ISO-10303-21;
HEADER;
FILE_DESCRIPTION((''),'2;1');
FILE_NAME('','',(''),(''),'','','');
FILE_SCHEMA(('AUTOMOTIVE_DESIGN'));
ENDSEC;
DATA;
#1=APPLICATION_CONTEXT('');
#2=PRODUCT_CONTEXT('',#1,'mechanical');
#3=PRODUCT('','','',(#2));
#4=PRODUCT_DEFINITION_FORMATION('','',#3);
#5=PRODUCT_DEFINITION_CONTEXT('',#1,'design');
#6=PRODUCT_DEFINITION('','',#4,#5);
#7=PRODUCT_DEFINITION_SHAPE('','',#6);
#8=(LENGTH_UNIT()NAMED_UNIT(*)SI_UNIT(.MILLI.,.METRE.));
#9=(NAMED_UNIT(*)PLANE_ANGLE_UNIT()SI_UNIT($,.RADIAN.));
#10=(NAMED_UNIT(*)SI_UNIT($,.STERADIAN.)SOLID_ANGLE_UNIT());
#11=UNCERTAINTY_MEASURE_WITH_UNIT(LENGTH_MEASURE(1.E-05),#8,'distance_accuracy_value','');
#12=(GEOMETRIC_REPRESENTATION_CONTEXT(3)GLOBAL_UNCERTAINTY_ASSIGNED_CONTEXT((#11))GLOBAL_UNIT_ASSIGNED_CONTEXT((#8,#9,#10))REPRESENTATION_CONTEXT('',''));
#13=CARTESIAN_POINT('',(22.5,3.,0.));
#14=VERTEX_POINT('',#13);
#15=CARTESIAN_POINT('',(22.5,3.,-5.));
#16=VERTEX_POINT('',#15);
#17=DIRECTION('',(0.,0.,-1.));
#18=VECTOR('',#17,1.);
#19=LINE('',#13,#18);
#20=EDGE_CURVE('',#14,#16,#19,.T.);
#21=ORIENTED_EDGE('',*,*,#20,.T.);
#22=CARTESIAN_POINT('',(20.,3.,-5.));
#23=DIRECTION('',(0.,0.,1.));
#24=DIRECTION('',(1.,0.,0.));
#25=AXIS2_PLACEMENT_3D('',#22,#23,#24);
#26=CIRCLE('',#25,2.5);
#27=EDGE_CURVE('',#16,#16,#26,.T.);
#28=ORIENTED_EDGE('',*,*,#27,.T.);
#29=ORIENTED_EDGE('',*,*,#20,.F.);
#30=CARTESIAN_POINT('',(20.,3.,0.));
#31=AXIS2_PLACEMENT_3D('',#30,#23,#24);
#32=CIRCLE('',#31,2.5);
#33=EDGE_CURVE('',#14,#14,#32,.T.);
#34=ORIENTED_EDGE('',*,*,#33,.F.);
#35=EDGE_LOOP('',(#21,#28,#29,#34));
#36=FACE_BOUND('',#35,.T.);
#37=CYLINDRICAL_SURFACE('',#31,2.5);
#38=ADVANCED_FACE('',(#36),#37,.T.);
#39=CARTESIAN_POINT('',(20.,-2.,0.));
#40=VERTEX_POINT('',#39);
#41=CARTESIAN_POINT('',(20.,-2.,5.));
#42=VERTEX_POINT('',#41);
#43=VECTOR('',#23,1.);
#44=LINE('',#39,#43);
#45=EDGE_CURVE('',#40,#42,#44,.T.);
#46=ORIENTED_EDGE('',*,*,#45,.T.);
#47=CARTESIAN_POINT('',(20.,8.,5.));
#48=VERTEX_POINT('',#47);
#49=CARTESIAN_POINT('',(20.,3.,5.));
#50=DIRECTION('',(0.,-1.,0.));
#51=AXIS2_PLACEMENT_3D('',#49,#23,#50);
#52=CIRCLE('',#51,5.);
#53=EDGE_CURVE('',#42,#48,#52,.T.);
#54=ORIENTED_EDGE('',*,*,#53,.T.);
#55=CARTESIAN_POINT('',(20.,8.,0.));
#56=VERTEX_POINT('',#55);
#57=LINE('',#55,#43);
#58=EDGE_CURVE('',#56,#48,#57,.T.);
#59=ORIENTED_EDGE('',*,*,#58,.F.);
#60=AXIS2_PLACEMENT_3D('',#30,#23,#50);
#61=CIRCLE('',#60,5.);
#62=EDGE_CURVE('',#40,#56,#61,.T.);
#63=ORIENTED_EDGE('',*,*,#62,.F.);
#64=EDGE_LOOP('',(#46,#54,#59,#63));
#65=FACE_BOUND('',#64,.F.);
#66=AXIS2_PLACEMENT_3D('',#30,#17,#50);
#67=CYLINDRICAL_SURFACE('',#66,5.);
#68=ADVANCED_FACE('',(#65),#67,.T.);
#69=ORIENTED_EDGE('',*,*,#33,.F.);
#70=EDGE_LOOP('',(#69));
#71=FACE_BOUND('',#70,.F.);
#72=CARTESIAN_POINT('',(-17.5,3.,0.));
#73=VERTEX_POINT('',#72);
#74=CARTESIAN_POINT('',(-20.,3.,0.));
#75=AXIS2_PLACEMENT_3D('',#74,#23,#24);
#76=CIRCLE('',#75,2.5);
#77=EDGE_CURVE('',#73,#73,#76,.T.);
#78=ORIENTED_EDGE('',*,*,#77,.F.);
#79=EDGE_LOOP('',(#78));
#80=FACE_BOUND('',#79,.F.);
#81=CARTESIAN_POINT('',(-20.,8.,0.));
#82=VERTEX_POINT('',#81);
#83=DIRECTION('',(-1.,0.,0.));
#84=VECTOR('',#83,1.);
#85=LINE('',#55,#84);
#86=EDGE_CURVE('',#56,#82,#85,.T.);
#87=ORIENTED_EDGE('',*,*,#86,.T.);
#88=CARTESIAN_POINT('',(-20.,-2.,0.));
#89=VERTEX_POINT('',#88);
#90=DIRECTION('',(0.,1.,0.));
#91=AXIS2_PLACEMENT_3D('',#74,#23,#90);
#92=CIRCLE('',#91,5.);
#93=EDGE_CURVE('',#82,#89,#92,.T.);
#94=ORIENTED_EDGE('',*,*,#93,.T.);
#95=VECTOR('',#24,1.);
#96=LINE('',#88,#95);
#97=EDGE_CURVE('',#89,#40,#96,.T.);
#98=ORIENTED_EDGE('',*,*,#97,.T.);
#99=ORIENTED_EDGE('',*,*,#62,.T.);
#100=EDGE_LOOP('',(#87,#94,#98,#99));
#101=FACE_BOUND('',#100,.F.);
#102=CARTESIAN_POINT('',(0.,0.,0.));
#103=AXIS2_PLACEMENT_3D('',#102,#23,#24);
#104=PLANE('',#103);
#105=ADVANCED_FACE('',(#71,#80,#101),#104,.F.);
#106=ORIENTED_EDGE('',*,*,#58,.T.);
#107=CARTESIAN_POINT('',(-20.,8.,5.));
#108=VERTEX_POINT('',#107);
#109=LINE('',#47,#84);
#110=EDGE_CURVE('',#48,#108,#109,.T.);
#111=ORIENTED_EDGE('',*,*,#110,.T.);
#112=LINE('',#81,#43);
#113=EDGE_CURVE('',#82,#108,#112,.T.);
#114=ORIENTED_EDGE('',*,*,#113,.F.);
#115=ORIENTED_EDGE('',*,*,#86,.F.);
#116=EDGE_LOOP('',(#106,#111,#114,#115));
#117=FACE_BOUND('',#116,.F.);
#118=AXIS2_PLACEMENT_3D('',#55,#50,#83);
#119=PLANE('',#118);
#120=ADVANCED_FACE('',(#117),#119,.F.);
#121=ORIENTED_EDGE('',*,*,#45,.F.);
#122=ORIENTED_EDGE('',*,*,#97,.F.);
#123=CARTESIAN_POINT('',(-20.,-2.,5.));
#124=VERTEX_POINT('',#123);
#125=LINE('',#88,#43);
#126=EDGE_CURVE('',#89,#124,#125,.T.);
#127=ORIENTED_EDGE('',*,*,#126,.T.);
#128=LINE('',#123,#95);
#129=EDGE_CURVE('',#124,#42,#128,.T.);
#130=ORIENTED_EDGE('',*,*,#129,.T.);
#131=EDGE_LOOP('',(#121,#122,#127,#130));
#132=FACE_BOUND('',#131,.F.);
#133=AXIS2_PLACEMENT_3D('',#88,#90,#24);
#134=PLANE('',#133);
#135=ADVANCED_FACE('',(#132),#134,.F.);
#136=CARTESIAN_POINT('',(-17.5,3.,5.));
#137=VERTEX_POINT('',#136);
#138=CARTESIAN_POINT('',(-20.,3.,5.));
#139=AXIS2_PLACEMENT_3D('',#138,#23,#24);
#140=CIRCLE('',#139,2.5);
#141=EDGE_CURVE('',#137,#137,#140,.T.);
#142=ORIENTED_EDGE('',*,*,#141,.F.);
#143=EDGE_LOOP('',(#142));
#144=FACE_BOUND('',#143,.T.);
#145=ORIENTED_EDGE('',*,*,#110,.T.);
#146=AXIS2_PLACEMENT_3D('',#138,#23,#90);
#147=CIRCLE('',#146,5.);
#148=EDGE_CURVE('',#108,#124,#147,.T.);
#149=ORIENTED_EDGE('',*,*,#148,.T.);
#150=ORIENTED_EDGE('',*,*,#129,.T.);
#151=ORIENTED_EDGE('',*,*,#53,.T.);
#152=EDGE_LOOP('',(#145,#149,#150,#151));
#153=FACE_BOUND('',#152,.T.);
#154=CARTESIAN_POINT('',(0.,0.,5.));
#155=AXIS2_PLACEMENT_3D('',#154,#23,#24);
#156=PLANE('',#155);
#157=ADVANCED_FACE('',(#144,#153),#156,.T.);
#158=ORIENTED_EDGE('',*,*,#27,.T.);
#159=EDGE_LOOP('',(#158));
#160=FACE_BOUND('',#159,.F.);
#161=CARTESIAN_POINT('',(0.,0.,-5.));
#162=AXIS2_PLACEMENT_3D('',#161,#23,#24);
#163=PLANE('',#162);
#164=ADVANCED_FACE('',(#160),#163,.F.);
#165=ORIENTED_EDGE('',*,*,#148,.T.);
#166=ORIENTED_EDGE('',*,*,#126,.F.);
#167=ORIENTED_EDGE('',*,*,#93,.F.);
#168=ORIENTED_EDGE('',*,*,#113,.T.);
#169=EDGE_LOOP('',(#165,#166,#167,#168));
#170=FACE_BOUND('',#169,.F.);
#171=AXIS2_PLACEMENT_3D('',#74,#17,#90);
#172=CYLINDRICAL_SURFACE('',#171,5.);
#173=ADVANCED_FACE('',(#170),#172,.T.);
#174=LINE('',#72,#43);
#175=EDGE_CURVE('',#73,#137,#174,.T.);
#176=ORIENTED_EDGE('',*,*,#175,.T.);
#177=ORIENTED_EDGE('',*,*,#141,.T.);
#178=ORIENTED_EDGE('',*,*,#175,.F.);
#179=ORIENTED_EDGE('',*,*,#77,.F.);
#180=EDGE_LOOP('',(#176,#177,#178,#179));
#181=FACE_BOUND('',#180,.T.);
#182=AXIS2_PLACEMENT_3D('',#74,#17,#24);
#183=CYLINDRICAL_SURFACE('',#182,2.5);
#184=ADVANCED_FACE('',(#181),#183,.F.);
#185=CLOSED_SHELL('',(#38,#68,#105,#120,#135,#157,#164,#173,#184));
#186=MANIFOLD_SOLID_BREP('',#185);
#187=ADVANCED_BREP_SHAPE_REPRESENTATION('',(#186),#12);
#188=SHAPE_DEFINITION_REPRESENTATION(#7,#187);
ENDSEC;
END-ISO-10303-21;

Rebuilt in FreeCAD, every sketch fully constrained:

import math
import FreeCAD as App
import Part
import Sketcher
from FreeCAD import Vector
Q = App.Units.Quantity

doc = App.newDocument("Part")
body = doc.addObject("PartDesign::Body", "Body")

# Sketch on XY plane
sketch1 = doc.addObject("Sketcher::SketchObject", "Sketch")
body.addObject(sketch1)
sketch1.AttachmentSupport = (doc.XY_Plane, [""])
sketch1.MapMode = "FlatFace"
sketch1.addGeometry([
    Part.ArcOfCircle(Part.Circle(Vector(-20, 3, 0), Vector(0, 0, 1), 5), math.radians(90), math.radians(270)),  # 0
    Part.LineSegment(Vector(-20, -2, 0), Vector(20, -2, 0)),  # 1
    Part.ArcOfCircle(Part.Circle(Vector(20, 3, 0), Vector(0, 0, 1), 5), math.radians(-90), math.radians(90)),  # 2
    Part.LineSegment(Vector(20, 8, 0), Vector(-20, 8, 0)),  # 3
    Part.Circle(Vector(-20, 3, 0), Vector(0, 0, 1), 2.5),  # 4
], False)
sketch1.addConstraint([
    Sketcher.Constraint("Tangent", 0, 2, 1, 1),
    Sketcher.Constraint("Tangent", 1, 2, 2, 1),
    Sketcher.Constraint("Tangent", 2, 2, 3, 1),
    Sketcher.Constraint("Tangent", 3, 2, 0, 1),
    Sketcher.Constraint("Horizontal", 1),
    Sketcher.Constraint("Horizontal", 3),
    Sketcher.Constraint("Coincident", 4, 3, 0, 3),
    Sketcher.Constraint("Diameter", 4, Q("5 mm")),
    Sketcher.Constraint("Radius", 0, Q("5 mm")),
    Sketcher.Constraint("DistanceX", 1, 1, 1, 2, Q("40 mm")),
    Sketcher.Constraint("DistanceX", 0, 3, -1, 1, Q("20 mm")),
    Sketcher.Constraint("DistanceY", -1, 1, 0, 3, Q("3 mm")),
])
pad1 = doc.addObject("PartDesign::Pad", "Pad")
body.addObject(pad1)
pad1.Profile = sketch1
pad1.Length = 5

# Sketch on XY plane
sketch2 = doc.addObject("Sketcher::SketchObject", "Sketch001")
body.addObject(sketch2)
sketch2.AttachmentSupport = (doc.XY_Plane, [""])
sketch2.MapMode = "FlatFace"
sketch2.addGeometry(Part.Circle(Vector(20, 3, 0), Vector(0, 0, 1), 2.5), False)
sketch2.addConstraint([
    Sketcher.Constraint("Diameter", 0, Q("5 mm")),
    Sketcher.Constraint("DistanceX", -1, 1, 0, 3, Q("20 mm")),
    Sketcher.Constraint("DistanceY", -1, 1, 0, 3, Q("3 mm")),
])
pad2 = doc.addObject("PartDesign::Pad", "Pad001")
body.addObject(pad2)
pad2.Profile = sketch2
pad2.Length = 5
pad2.Reversed = True

doc.recompute()
